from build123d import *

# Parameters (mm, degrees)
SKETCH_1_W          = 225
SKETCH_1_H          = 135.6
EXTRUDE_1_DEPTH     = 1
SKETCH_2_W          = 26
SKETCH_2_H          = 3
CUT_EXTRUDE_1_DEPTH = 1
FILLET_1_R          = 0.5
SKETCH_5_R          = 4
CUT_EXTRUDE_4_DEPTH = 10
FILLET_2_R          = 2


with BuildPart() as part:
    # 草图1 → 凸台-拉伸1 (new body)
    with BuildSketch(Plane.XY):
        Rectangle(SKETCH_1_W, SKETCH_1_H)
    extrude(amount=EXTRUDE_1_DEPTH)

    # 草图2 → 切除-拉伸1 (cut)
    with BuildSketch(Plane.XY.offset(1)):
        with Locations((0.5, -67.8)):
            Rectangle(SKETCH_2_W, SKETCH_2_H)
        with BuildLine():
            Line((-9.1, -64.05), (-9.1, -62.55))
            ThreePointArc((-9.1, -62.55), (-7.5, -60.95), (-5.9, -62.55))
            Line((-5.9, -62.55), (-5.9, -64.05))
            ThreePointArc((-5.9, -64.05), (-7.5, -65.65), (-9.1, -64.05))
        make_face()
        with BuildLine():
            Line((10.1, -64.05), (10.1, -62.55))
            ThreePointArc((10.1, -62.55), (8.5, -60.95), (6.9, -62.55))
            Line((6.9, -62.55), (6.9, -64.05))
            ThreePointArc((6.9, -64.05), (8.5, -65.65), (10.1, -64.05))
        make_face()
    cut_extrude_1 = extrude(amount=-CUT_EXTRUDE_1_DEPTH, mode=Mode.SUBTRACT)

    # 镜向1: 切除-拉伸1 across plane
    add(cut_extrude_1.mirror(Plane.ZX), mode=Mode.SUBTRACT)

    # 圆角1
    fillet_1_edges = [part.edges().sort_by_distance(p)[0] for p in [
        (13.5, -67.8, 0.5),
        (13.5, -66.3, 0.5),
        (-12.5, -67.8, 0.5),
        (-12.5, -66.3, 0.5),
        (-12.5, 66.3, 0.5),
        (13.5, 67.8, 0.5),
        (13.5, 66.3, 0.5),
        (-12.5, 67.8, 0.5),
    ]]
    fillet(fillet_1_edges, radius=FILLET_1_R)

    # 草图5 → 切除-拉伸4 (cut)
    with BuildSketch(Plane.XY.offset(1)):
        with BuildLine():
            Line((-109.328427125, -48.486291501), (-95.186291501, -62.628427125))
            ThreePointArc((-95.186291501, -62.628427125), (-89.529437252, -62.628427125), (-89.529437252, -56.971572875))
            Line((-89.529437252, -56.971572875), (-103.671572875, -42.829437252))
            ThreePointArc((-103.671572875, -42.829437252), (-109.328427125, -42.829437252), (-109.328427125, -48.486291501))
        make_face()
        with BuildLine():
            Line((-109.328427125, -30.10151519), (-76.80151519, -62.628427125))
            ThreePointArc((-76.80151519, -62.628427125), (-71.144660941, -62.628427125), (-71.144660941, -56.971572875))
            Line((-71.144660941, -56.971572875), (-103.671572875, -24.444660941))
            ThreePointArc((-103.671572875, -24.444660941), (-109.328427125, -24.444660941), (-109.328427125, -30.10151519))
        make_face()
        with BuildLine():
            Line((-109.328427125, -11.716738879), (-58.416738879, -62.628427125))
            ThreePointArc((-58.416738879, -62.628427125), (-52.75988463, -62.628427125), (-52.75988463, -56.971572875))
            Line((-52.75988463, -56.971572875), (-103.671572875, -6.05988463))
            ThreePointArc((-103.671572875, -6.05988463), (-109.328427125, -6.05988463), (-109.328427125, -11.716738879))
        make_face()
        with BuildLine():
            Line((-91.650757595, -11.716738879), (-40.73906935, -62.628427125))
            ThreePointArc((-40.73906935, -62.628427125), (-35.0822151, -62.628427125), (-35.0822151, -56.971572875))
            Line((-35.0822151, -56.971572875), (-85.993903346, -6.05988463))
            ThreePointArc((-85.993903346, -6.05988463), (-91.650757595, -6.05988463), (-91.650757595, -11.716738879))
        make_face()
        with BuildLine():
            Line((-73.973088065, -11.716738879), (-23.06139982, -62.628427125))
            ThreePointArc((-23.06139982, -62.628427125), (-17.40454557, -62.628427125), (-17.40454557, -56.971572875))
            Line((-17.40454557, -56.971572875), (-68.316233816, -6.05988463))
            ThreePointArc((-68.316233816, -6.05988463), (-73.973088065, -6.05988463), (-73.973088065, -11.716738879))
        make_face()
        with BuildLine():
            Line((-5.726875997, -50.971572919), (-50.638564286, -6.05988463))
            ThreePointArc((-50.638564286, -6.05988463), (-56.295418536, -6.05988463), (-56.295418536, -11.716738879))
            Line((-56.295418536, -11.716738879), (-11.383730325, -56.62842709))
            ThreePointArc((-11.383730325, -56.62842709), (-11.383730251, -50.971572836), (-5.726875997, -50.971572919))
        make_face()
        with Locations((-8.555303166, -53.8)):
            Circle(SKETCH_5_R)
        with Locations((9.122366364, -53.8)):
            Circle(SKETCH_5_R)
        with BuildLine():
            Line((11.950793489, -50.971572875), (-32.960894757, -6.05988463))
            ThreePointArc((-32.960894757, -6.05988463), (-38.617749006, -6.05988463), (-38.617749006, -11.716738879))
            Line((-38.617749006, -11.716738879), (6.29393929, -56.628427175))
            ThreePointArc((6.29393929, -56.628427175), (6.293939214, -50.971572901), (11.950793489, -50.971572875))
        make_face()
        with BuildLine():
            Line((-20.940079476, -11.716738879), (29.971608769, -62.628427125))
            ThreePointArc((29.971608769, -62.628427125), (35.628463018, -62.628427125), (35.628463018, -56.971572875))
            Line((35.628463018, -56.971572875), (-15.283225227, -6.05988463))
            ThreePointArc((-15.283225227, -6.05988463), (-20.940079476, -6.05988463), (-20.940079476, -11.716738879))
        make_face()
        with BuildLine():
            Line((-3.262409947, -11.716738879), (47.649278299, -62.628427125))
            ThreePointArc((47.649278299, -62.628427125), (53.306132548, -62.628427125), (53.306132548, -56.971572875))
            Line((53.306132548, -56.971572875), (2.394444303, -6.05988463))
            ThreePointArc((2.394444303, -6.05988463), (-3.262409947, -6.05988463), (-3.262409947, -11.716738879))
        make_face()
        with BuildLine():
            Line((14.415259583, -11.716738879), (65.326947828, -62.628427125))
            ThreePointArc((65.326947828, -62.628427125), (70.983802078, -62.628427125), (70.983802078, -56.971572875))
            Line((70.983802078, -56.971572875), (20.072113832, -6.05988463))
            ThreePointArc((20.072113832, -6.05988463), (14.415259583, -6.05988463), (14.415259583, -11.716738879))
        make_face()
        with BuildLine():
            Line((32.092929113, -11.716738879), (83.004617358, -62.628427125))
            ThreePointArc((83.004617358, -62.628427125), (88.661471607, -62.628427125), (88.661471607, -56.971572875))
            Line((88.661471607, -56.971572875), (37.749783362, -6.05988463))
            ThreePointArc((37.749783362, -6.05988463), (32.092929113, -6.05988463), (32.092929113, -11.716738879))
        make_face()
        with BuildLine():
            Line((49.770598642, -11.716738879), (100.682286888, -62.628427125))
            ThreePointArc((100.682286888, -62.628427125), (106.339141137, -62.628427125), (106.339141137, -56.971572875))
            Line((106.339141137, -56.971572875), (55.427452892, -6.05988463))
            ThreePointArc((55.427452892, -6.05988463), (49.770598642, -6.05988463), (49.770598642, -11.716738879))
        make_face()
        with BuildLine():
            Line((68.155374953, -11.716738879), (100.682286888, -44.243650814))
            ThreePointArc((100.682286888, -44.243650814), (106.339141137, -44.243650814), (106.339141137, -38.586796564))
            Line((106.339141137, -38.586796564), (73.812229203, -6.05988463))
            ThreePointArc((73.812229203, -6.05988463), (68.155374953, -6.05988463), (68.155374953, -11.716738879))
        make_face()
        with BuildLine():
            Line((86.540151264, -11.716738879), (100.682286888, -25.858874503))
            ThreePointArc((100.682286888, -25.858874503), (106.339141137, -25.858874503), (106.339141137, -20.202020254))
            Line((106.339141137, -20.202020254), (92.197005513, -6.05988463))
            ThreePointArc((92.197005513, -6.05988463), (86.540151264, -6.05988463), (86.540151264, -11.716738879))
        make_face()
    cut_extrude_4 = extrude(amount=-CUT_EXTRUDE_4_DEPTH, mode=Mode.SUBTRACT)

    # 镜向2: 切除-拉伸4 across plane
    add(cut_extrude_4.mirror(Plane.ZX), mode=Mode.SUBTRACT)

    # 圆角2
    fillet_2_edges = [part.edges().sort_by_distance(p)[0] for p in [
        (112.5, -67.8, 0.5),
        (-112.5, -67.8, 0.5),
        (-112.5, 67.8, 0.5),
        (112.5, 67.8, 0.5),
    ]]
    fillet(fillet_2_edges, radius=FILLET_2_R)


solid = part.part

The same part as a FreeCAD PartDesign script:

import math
import FreeCAD as App
import Part
import Sketcher

V = App.Vector
Q = App.Units.Quantity


def edges_at(feature, points):
    """Names of the edges that pass closest to the given points."""
    edges = feature.Shape.Edges
    near = lambda p: min(range(len(edges)), key=lambda i: edges[i].distToShape(Part.Vertex(*p))[0])
    return sorted({f"Edge{near(p) + 1}" for p in points})

doc = App.newDocument("Part")
body = doc.addObject("PartDesign::Body", "Body")

sketch1 = body.newObject("Sketcher::SketchObject", "Sketch")
sketch1.AttachmentSupport = (doc.getObject("XY_Plane"), [""])
sketch1.MapMode = "FlatFace"
sketch1.addGeometry([
    Part.LineSegment(V(-112, 68, 0), V(-112, -68, 0)),
    Part.LineSegment(V(-112, -68, 0), V(112, -68, 0)),
    Part.LineSegment(V(112, -68, 0), V(112, 68, 0)),
    Part.LineSegment(V(112, 68, 0), V(-112, 68, 0)),
], False)
sketch1.addConstraint([
    Sketcher.Constraint("Coincident", 0, 2, 1, 1),
    Sketcher.Constraint("Coincident", 1, 2, 2, 1),
    Sketcher.Constraint("Coincident", 2, 2, 3, 1),
    Sketcher.Constraint("Coincident", 3, 2, 0, 1),
    Sketcher.Constraint("Vertical", 0),
    Sketcher.Constraint("Horizontal", 1),
    Sketcher.Constraint("Vertical", 2),
    Sketcher.Constraint("Horizontal", 3),
    Sketcher.Constraint("Symmetric", 0, 2, 2, 2, -1, 1),
    Sketcher.Constraint("DistanceX", 1, 1, 1, 2, 225.0),
    Sketcher.Constraint("DistanceY", 0, 2, 0, 1, 135.6),
])
pad1 = body.newObject("PartDesign::Pad", "Pad")
pad1.Profile = sketch1
pad1.Length = 1

sketch2 = body.newObject("Sketcher::SketchObject", "Sketch001")
sketch2.AttachmentSupport = (doc.getObject("XY_Plane"), [""])
sketch2.MapMode = "FlatFace"
sketch2.AttachmentOffset = App.Placement(V(0, 0, 1), App.Rotation())
sketch2.addGeometry([
    Part.LineSegment(V(-12.5, -66.3, 0), V(-12.5, -69.3, 0)),
    Part.LineSegment(V(-12.5, -69.3, 0), V(13.5, -69.3, 0)),
    Part.LineSegment(V(13.5, -69.3, 0), V(13.5, -66.3, 0)),
    Part.LineSegment(V(13.5, -66.3, 0), V(-12.5, -66.3, 0)),
    Part.LineSegment(V(-9.1, -62.5, 0), V(-9.1, -64, 0)),
    Part.ArcOfCircle(Part.Circle(V(-7.5, -64, 0), V(0, 0, 1), 1.6), math.radians(180), math.radians(360)),
    Part.LineSegment(V(-5.9, -64, 0), V(-5.9, -62.5, 0)),
    Part.ArcOfCircle(Part.Circle(V(-7.5, -62.5, 0), V(0, 0, 1), 1.6), math.radians(0), math.radians(180)),
    Part.LineSegment(V(10.1, -64, 0), V(10.1, -62.5, 0)),
    Part.ArcOfCircle(Part.Circle(V(8.5, -62.5, 0), V(0, 0, 1), 1.6), math.radians(0), math.radians(180)),
    Part.LineSegment(V(6.9, -62.5, 0), V(6.9, -64, 0)),
    Part.ArcOfCircle(Part.Circle(V(8.5, -64, 0), V(0, 0, 1), 1.6), math.radians(180), math.radians(360)),
], False)
sketch2.addConstraint([
    Sketcher.Constraint("Coincident", 0, 2, 1, 1),
    Sketcher.Constraint("Coincident", 1, 2, 2, 1),
    Sketcher.Constraint("Coincident", 2, 2, 3, 1),
    Sketcher.Constraint("Coincident", 3, 2, 0, 1),
    Sketcher.Constraint("Tangent", 4, 2, 5, 1),
    Sketcher.Constraint("Tangent", 5, 2, 6, 1),
    Sketcher.Constraint("Tangent", 6, 2, 7, 1),
    Sketcher.Constraint("Tangent", 7, 2, 4, 1),
    Sketcher.Constraint("Tangent", 8, 2, 9, 1),
    Sketcher.Constraint("Tangent", 9, 2, 10, 1),
    Sketcher.Constraint("Tangent", 10, 2, 11, 1),
    Sketcher.Constraint("Tangent", 11, 2, 8, 1),
    Sketcher.Constraint("Vertical", 0),
    Sketcher.Constraint("Horizontal", 1),
    Sketcher.Constraint("Vertical", 2),
    Sketcher.Constraint("Horizontal", 3),
    Sketcher.Constraint("Vertical", 4),
    Sketcher.Constraint("Vertical", 6),
    Sketcher.Constraint("Vertical", 8),
    Sketcher.Constraint("Vertical", 10),
    Sketcher.Constraint("Equal", 7, 9),
    Sketcher.Constraint("Horizontal", 7, 3, 9, 3),
    Sketcher.Constraint("Horizontal", 5, 3, 11, 3),
    Sketcher.Constraint("Radius", 5, 1.6),
    Sketcher.Constraint("DistanceX", 1, 1, 1, 2, 26.0),
    Sketcher.Constraint("DistanceY", 0, 2, 0, 1, 3.0),
    Sketcher.Constraint("DistanceY", 4, 2, 4, 1, 1.5),
    Sketcher.Constraint("DistanceX", 7, 3, 9, 3, 16.0),
    Sketcher.Constraint("DistanceX", 0, 2, 5, 3, 5.0),
    Sketcher.Constraint("DistanceX", 5, 3, -1, 1, 7.5),
    Sketcher.Constraint("DistanceY", 0, 2, -1, 1, 69.3),
    Sketcher.Constraint("DistanceY", 5, 3, -1, 1, 64.05),
])
pocket1 = body.newObject("PartDesign::Pocket", "Pocket")
pocket1.Profile = sketch2
pocket1.Length = 1
doc.recompute()

mirrored = body.newObject("PartDesign::Mirrored", "Mirrored")
mirrored.Originals = [pocket1]
mirrored.MirrorPlane = (doc.getObject("XZ_Plane"), [""])
body.Tip = mirrored
doc.recompute()

fillet = body.newObject("PartDesign::Fillet", "Fillet")
fillet.Base = (mirrored, edges_at(mirrored, [
    (13.5, -67.8, 0.5),
    (13.5, -66.3, 0.5),
    (-12.5, -67.8, 0.5),
    (-12.5, -66.3, 0.5),
    (-12.5, 66.3, 0.5),
    (13.5, 67.8, 0.5),
    (13.5, 66.3, 0.5),
    (-12.5, 67.8, 0.5),
]))
fillet.Radius = 0.5

sketch3 = body.newObject("Sketcher::SketchObject", "Sketch002")
sketch3.AttachmentSupport = (doc.getObject("XY_Plane"), [""])
sketch3.MapMode = "FlatFace"
sketch3.AttachmentOffset = App.Placement(V(0, 0, 1), App.Rotation())
sketch3.addGeometry([
    Part.LineSegment(V(-109.3, -48.5, 0), V(-95.2, -62.6, 0)),
    Part.ArcOfCircle(Part.Circle(V(-92.4, -59.8, 0), V(0, 0, 1), 4), math.radians(-135), math.radians(45)),
    Part.LineSegment(V(-89.5, -57, 0), V(-103.7, -42.8, 0)),
    Part.ArcOfCircle(Part.Circle(V(-106.5, -45.7, 0), V(0, 0, 1), 4), math.radians(45), math.radians(225)),
    Part.LineSegment(V(-109.3, -30.1, 0), V(-76.8, -62.6, 0)),
    Part.ArcOfCircle(Part.Circle(V(-74, -59.8, 0), V(0, 0, 1), 4), math.radians(-135), math.radians(45)),
    Part.LineSegment(V(-71.1, -57, 0), V(-103.7, -24.4, 0)),
    Part.ArcOfCircle(Part.Circle(V(-106.5, -27.3, 0), V(0, 0, 1), 4), math.radians(45), math.radians(225)),
    Part.LineSegment(V(-109.3, -11.7, 0), V(-58.4, -62.6, 0)),
    Part.ArcOfCircle(Part.Circle(V(-55.6, -59.8, 0), V(0, 0, 1), 4), math.radians(-135), math.radians(45)),
    Part.LineSegment(V(-52.8, -57, 0), V(-103.7, -6.1, 0)),
    Part.ArcOfCircle(Part.Circle(V(-106.5, -8.9, 0), V(0, 0, 1), 4), math.radians(45), math.radians(225)),
    Part.LineSegment(V(-91.7, -11.7, 0), V(-40.7, -62.6, 0)),
    Part.ArcOfCircle(Part.Circle(V(-37.9, -59.8, 0), V(0, 0, 1), 4), math.radians(-135), math.radians(45)),
    Part.LineSegment(V(-35.1, -57, 0), V(-86, -6.1, 0)),
    Part.ArcOfCircle(Part.Circle(V(-88.8, -8.9, 0), V(0, 0, 1), 4), math.radians(45), math.radians(225)),
    Part.LineSegment(V(-74, -11.7, 0), V(-23.1, -62.6, 0)),
    Part.ArcOfCircle(Part.Circle(V(-20.2, -59.8, 0), V(0, 0, 1), 4), math.radians(-135), math.radians(45)),
    Part.LineSegment(V(-17.4, -57, 0), V(-68.3, -6.1, 0)),
    Part.ArcOfCircle(Part.Circle(V(-71.1, -8.9, 0), V(0, 0, 1), 4), math.radians(45), math.radians(225)),
    Part.LineSegment(V(-5.7, -51, 0), V(-50.6, -6.1, 0)),
    Part.ArcOfCircle(Part.Circle(V(-53.5, -8.9, 0), V(0, 0, 1), 4), math.radians(45), math.radians(225)),
    Part.LineSegment(V(-56.3, -11.7, 0), V(-11.4, -56.6, 0)),
    Part.ArcOfCircle(Part.Circle(V(-8.6, -53.8, 0), V(0, 0, 1), 4), math.radians(-135), math.radians(45)),
    Part.LineSegment(V(12, -51, 0), V(-33, -6.1, 0)),
    Part.ArcOfCircle(Part.Circle(V(-35.8, -8.9, 0), V(0, 0, 1), 4), math.radians(45), math.radians(225)),
    Part.LineSegment(V(-38.6, -11.7, 0), V(6.3, -56.6, 0)),
    Part.ArcOfCircle(Part.Circle(V(9.1, -53.8, 0), V(0, 0, 1), 4), math.radians(-135), math.radians(45)),
    Part.LineSegment(V(-20.9, -11.7, 0), V(30, -62.6, 0)),
    Part.ArcOfCircle(Part.Circle(V(32.8, -59.8, 0), V(0, 0, 1), 4), math.radians(-135), math.radians(45)),
    Part.LineSegment(V(35.6, -57, 0), V(-15.3, -6.1, 0)),
    Part.ArcOfCircle(Part.Circle(V(-18.1, -8.9, 0), V(0, 0, 1), 4), math.radians(45), math.radians(225)),
    Part.LineSegment(V(-3.3, -11.7, 0), V(47.6, -62.6, 0)),
    Part.ArcOfCircle(Part.Circle(V(50.5, -59.8, 0), V(0, 0, 1), 4), math.radians(-135), math.radians(45)),
    Part.LineSegment(V(53.3, -57, 0), V(2.4, -6.1, 0)),
    Part.ArcOfCircle(Part.Circle(V(-0.4, -8.9, 0), V(0, 0, 1), 4), math.radians(45), math.radians(225)),
    Part.LineSegment(V(14.4, -11.7, 0), V(65.3, -62.6, 0)),
    Part.ArcOfCircle(Part.Circle(V(68.2, -59.8, 0), V(0, 0, 1), 4), math.radians(-135), math.radians(45)),
    Part.LineSegment(V(71, -57, 0), V(20.1, -6.1, 0)),
    Part.ArcOfCircle(Part.Circle(V(17.2, -8.9, 0), V(0, 0, 1), 4), math.radians(45), math.radians(225)),
    Part.LineSegment(V(32.1, -11.7, 0), V(83, -62.6, 0)),
    Part.ArcOfCircle(Part.Circle(V(85.8, -59.8, 0), V(0, 0, 1), 4), math.radians(-135), math.radians(45)),
    Part.LineSegment(V(88.7, -57, 0), V(37.7, -6.1, 0)),
    Part.ArcOfCircle(Part.Circle(V(34.9, -8.9, 0), V(0, 0, 1), 4), math.radians(45), math.radians(225)),
    Part.LineSegment(V(49.8, -11.7, 0), V(100.7, -62.6, 0)),
    Part.ArcOfCircle(Part.Circle(V(103.5, -59.8, 0), V(0, 0, 1), 4), math.radians(-135), math.radians(45)),
    Part.LineSegment(V(106.3, -57, 0), V(55.4, -6.1, 0)),
    Part.ArcOfCircle(Part.Circle(V(52.6, -8.9, 0), V(0, 0, 1), 4), math.radians(45), math.radians(225)),
    Part.LineSegment(V(68.2, -11.7, 0), V(100.7, -44.2, 0)),
    Part.ArcOfCircle(Part.Circle(V(103.5, -41.4, 0), V(0, 0, 1), 4), math.radians(-135), math.radians(45)),
    Part.LineSegment(V(106.3, -38.6, 0), V(73.8, -6.1, 0)),
    Part.ArcOfCircle(Part.Circle(V(71, -8.9, 0), V(0, 0, 1), 4), math.radians(45), math.radians(225)),
    Part.LineSegment(V(86.5, -11.7, 0), V(100.7, -25.9, 0)),
    Part.ArcOfCircle(Part.Circle(V(103.5, -23, 0), V(0, 0, 1), 4), math.radians(-135), math.radians(45)),
    Part.LineSegment(V(106.3, -20.2, 0), V(92.2, -6.1, 0)),
    Part.ArcOfCircle(Part.Circle(V(89.4, -8.9, 0), V(0, 0, 1), 4), math.radians(45), math.radians(225)),
], False)
sketch3.addConstraint([
    Sketcher.Constraint("Tangent", 0, 2, 1, 1),
    Sketcher.Constraint("Tangent", 1, 2, 2, 1),
    Sketcher.Constraint("Tangent", 2, 2, 3, 1),
    Sketcher.Constraint("Tangent", 3, 2, 0, 1),
    Sketcher.Constraint("Tangent", 4, 2, 5, 1),
    Sketcher.Constraint("Tangent", 5, 2, 6, 1),
    Sketcher.Constraint("Tangent", 6, 2, 7, 1),
    Sketcher.Constraint("Tangent", 7, 2, 4, 1),
    Sketcher.Constraint("Tangent", 8, 2, 9, 1),
    Sketcher.Constraint("Tangent", 9, 2, 10, 1),
    Sketcher.Constraint("Tangent", 10, 2, 11, 1),
    Sketcher.Constraint("Tangent", 11, 2, 8, 1),
    Sketcher.Constraint("Tangent", 12, 2, 13, 1),
    Sketcher.Constraint("Tangent", 13, 2, 14, 1),
    Sketcher.Constraint("Tangent", 14, 2, 15, 1),
    Sketcher.Constraint("Tangent", 15, 2, 12, 1),
    Sketcher.Constraint("Tangent", 16, 2, 17, 1),
    Sketcher.Constraint("Tangent", 17, 2, 18, 1),
    Sketcher.Constraint("Tangent", 18, 2, 19, 1),
    Sketcher.Constraint("Tangent", 19, 2, 16, 1),
    Sketcher.Constraint("Tangent", 20, 2, 21, 1),
    Sketcher.Constraint("Tangent", 21, 2, 22, 1),
    Sketcher.Constraint("Tangent", 22, 2, 23, 1),
    Sketcher.Constraint("Tangent", 23, 2, 20, 1),
    Sketcher.Constraint("Tangent", 24, 2, 25, 1),
    Sketcher.Constraint("Tangent", 25, 2, 26, 1),
    Sketcher.Constraint("Tangent", 26, 2, 27, 1),
    Sketcher.Constraint("Tangent", 27, 2, 24, 1),
    Sketcher.Constraint("Tangent", 28, 2, 29, 1),
    Sketcher.Constraint("Tangent", 29, 2, 30, 1),
    Sketcher.Constraint("Tangent", 30, 2, 31, 1),
    Sketcher.Constraint("Tangent", 31, 2, 28, 1),
    Sketcher.Constraint("Tangent", 32, 2, 33, 1),
    Sketcher.Constraint("Tangent", 33, 2, 34, 1),
    Sketcher.Constraint("Tangent", 34, 2, 35, 1),
    Sketcher.Constraint("Tangent", 35, 2, 32, 1),
    Sketcher.Constraint("Tangent", 36, 2, 37, 1),
    Sketcher.Constraint("Tangent", 37, 2, 38, 1),
    Sketcher.Constraint("Tangent", 38, 2, 39, 1),
    Sketcher.Constraint("Tangent", 39, 2, 36, 1),
    Sketcher.Constraint("Tangent", 40, 2, 41, 1),
    Sketcher.Constraint("Tangent", 41, 2, 42, 1),
    Sketcher.Constraint("Tangent", 42, 2, 43, 1),
    Sketcher.Constraint("Tangent", 43, 2, 40, 1),
    Sketcher.Constraint("Tangent", 44, 2, 45, 1),
    Sketcher.Constraint("Tangent", 45, 2, 46, 1),
    Sketcher.Constraint("Tangent", 46, 2, 47, 1),
    Sketcher.Constraint("Tangent", 47, 2, 44, 1),
    Sketcher.Constraint("Tangent", 48, 2, 49, 1),
    Sketcher.Constraint("Tangent", 49, 2, 50, 1),
    Sketcher.Constraint("Tangent", 50, 2, 51, 1),
    Sketcher.Constraint("Tangent", 51, 2, 48, 1),
    Sketcher.Constraint("Tangent", 52, 2, 53, 1),
    Sketcher.Constraint("Tangent", 53, 2, 54, 1),
    Sketcher.Constraint("Tangent", 54, 2, 55, 1),
    Sketcher.Constraint("Tangent", 55, 2, 52, 1),
    Sketcher.Constraint("Equal", 1, 3),
    Sketcher.Constraint("Equal", 3, 5),
    Sketcher.Constraint("Equal", 5, 7),
    Sketcher.Constraint("Equal", 7, 9),
    Sketcher.Constraint("Equal", 9, 11),
    Sketcher.Constraint("Equal", 11, 13),
    Sketcher.Constraint("Equal", 13, 15),
    Sketcher.Constraint("Equal", 15, 17),
    Sketcher.Constraint("Equal", 17, 19),
    Sketcher.Constraint("Equal", 19, 21),
    Sketcher.Constraint("Equal", 21, 23),
    Sketcher.Constraint("Equal", 23, 25),
    Sketcher.Constraint("Equal", 25, 27),
    Sketcher.Constraint("Equal", 27, 29),
    Sketcher.Constraint("Equal", 29, 31),
    Sketcher.Constraint("Equal", 31, 33),
    Sketcher.Constraint("Equal", 33, 35),
    Sketcher.Constraint("Equal", 35, 37),
    Sketcher.Constraint("Equal", 37, 39),
    Sketcher.Constraint("Equal", 39, 41),
    Sketcher.Constraint("Equal", 41, 43),
    Sketcher.Constraint("Equal", 43, 45),
    Sketcher.Constraint("Equal", 45, 47),
    Sketcher.Constraint("Equal", 47, 49),
    Sketcher.Constraint("Equal", 49, 51),
    Sketcher.Constraint("Equal", 51, 53),
    Sketcher.Constraint("Equal", 53, 55),
    Sketcher.Constraint("Parallel", 2, 4),
    Sketcher.Constraint("Parallel", 6, 8),
    Sketcher.Constraint("Parallel", 10, 12),
    Sketcher.Constraint("Parallel", 14, 16),
    Sketcher.Constraint("Parallel", 18, 20),
    Sketcher.Constraint("Parallel", 22, 24),
    Sketcher.Constraint("Parallel", 26, 28),
    Sketcher.Constraint("Parallel", 30, 32),
    Sketcher.Constraint("Parallel", 34, 36),
    Sketcher.Constraint("Parallel", 38, 40),
    Sketcher.Constraint("Parallel", 42, 44),
    Sketcher.Constraint("Parallel", 46, 48),
    Sketcher.Constraint("Parallel", 50, 52),
    Sketcher.Constraint("Horizontal", 1, 3, 5, 3),
    Sketcher.Constraint("Horizontal", 5, 3, 9, 3),
    Sketcher.Constraint("Horizontal", 9, 3, 13, 3),
    Sketcher.Constraint("Horizontal", 11, 3, 15, 3),
    Sketcher.Constraint("Horizontal", 13, 3, 17, 3),
    Sketcher.Constraint("Horizontal", 15, 3, 19, 3),
    Sketcher.Constraint("Horizontal", 19, 3, 21, 3),
    Sketcher.Constraint("Horizontal", 21, 3, 25, 3),
    Sketcher.Constraint("Horizontal", 23, 3, 27, 3),
    Sketcher.Constraint("Horizontal", 17, 3, 29, 3),
    Sketcher.Constraint("Horizontal", 25, 3, 31, 3),
    Sketcher.Constraint("Horizontal", 29, 3, 33, 3),
    Sketcher.Constraint("Horizontal", 31, 3, 35, 3),
    Sketcher.Constraint("Horizontal", 33, 3, 37, 3),
    Sketcher.Constraint("Horizontal", 35, 3, 39, 3),
    Sketcher.Constraint("Horizontal", 37, 3, 41, 3),
    Sketcher.Constraint("Horizontal", 39, 3, 43, 3),
    Sketcher.Constraint("Horizontal", 41, 3, 45, 3),
    Sketcher.Constraint("Horizontal", 43, 3, 47, 3),
    Sketcher.Constraint("Horizontal", 47, 3, 51, 3),
    Sketcher.Constraint("Horizontal", 51, 3, 55, 3),
    Sketcher.Constraint("Vertical", 3, 3, 7, 3),
    Sketcher.Constraint("Vertical", 7, 3, 11, 3),
    Sketcher.Constraint("Vertical", 45, 3, 49, 3),
    Sketcher.Constraint("Vertical", 49, 3, 53, 3),
    Sketcher.Constraint("Vertical", 19, 3, 5, 2),
    Sketcher.Constraint("Vertical", 51, 3, 37, 2),
    Sketcher.Constraint("Equal", 6, 48),
    Sketcher.Constraint("Equal", 2, 52),
    Sketcher.Constraint("Radius", 1, 4.0),
    Sketcher.Constraint("Angle", 0, Q("-45 deg")),
    Sketcher.Constraint("Distance", 0, 20.0),
    Sketcher.Constraint("Distance", 4, 46.0),
    Sketcher.Constraint("Distance", 8, 72.0),
    Sketcher.Constraint("DistanceY", 1, 3, -1, 1, 59.8),
    Sketcher.Constraint("DistanceX", 3, 3, -1, 1, 106.5),
    Sketcher.Constraint("DistanceY", 23, 3, -1, 1, 53.8),
    Sketcher.Constraint("DistanceX", -1, 1, 47, 2, 49.770599),
    Sketcher.Constraint("DistanceX", 15, 3, -1, 1, 88.82233),
    Sketcher.Constraint("DistanceX", 21, 3, -1, 1, 53.466991),
    Sketcher.Constraint("DistanceX", 25, 3, -1, 1, 35.789322),
    Sketcher.Constraint("DistanceX", -1, 1, 28, 2, 29.971609),
    Sketcher.Constraint("DistanceX", -1, 1, 32, 2, 47.649278),
    Sketcher.Constraint("DistanceX", -1, 1, 41, 2, 88.661472),
])
pocket2 = body.newObject("PartDesign::Pocket", "Pocket001")
pocket2.Profile = sketch3
pocket2.Length = 10
doc.recompute()

mirrored2 = body.newObject("PartDesign::Mirrored", "Mirrored001")
mirrored2.Originals = [pocket2]
mirrored2.MirrorPlane = (doc.getObject("XZ_Plane"), [""])
body.Tip = mirrored2
doc.recompute()

fillet2 = body.newObject("PartDesign::Fillet", "Fillet001")
fillet2.Base = (mirrored2, edges_at(mirrored2, [
    (112.5, -67.8, 0.5),
    (-112.5, -67.8, 0.5),
    (-112.5, 67.8, 0.5),
    (112.5, 67.8, 0.5),
]))
fillet2.Radius = 2

doc.recompute()
